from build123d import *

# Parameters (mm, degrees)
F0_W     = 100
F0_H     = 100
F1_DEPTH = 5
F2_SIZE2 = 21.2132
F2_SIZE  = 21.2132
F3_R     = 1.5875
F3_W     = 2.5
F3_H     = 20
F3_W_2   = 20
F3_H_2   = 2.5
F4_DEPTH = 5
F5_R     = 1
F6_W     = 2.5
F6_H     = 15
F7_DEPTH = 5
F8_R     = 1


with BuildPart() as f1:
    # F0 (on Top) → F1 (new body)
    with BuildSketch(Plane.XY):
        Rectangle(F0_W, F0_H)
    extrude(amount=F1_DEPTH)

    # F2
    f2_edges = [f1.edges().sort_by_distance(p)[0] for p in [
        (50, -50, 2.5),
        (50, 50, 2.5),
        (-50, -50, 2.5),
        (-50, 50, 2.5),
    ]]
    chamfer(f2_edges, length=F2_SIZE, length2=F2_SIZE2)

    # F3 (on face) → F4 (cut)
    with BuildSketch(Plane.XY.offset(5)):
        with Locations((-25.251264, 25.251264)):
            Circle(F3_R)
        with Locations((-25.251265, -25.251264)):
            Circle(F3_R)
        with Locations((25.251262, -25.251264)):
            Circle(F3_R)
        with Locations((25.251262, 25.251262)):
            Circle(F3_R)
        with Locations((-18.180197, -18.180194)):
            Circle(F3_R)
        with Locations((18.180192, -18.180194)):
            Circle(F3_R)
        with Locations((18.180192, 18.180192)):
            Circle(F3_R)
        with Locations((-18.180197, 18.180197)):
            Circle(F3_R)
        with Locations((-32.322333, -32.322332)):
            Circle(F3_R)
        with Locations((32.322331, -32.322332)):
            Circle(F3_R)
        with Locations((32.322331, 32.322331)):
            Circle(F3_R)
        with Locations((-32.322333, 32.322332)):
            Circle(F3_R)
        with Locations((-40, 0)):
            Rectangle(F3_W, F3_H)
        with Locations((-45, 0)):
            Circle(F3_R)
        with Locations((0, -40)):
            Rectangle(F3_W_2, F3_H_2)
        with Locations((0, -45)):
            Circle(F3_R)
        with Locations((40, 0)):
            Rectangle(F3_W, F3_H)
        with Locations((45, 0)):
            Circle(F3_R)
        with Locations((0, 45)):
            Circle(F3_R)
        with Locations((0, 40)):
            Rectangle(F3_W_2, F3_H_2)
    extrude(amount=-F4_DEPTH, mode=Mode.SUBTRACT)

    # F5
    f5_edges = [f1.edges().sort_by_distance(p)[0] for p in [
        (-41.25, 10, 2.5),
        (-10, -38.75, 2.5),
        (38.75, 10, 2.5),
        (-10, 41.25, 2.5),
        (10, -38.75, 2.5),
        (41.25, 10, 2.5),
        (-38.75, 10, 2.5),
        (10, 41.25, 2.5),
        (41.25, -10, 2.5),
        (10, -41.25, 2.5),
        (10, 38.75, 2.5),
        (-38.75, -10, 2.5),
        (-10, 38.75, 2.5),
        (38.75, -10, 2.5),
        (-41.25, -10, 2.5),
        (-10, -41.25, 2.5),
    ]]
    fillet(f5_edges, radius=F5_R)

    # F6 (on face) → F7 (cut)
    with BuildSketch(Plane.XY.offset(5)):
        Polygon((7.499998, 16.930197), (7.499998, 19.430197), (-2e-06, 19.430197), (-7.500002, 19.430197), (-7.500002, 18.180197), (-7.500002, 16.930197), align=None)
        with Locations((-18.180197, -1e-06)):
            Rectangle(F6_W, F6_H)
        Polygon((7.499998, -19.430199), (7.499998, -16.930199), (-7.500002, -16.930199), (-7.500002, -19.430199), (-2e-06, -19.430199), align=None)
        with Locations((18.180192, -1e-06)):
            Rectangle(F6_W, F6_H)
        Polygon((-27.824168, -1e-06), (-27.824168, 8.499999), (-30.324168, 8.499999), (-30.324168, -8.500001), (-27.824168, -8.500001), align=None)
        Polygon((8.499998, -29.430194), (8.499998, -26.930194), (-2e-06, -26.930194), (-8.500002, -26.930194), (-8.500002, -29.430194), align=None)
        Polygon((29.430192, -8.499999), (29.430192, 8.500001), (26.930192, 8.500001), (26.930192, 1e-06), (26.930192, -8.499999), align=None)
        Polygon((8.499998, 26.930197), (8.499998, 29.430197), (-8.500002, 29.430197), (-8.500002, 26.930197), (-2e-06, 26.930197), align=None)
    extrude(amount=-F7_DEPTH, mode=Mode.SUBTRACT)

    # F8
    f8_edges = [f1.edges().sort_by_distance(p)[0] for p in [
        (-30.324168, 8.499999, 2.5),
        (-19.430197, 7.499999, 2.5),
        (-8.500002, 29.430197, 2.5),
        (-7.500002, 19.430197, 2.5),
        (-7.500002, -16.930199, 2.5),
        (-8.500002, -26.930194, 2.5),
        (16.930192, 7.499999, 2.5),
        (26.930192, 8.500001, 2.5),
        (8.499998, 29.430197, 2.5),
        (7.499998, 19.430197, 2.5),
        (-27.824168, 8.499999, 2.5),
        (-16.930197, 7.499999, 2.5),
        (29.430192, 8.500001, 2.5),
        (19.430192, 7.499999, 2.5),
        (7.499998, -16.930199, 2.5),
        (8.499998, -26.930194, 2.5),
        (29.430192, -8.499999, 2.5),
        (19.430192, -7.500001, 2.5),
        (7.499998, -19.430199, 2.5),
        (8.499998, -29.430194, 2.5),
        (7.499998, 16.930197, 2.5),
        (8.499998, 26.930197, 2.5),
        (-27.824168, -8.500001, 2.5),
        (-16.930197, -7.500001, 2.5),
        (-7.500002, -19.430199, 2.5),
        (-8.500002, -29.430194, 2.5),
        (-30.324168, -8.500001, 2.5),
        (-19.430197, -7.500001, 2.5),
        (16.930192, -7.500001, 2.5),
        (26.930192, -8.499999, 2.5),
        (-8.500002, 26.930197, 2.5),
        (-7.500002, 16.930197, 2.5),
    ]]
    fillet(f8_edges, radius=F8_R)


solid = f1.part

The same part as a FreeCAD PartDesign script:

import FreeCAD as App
import Part
import Sketcher

V = App.Vector
Q = App.Units.Quantity


def edges_at(feature, points):
    """Names of the edges that pass closest to the given points."""
    edges = feature.Shape.Edges
    near = lambda p: min(range(len(edges)), key=lambda i: edges[i].distToShape(Part.Vertex(*p))[0])
    return sorted({f"Edge{near(p) + 1}" for p in points})


def add_polygon(sketch, points):
    """Adds a closed chain of lines whose ends are joined by coincident constraints."""
    first, n = sketch.GeometryCount, len(points)
    for a, b in zip(points, points[1:] + points[:1]):
        sketch.addGeometry(Part.LineSegment(App.Vector(*a, 0), App.Vector(*b, 0)), False)
    for i in range(n):
        sketch.addConstraint(Sketcher.Constraint("Coincident", first + i, 2, first + (i + 1) % n, 1))

doc = App.newDocument("Part")
body = doc.addObject("PartDesign::Body", "Body")

# Sketch on XY plane
sketch1 = body.newObject("Sketcher::SketchObject", "Sketch")
sketch1.AttachmentSupport = (doc.getObject("XY_Plane"), [""])
sketch1.MapMode = "FlatFace"
add_polygon(sketch1, [(-50, 50), (-50, -50), (50, -50), (50, 50)])  # lines 0-3
sketch1.addConstraint(Sketcher.Constraint("Vertical", 0))
sketch1.addConstraint(Sketcher.Constraint("Horizontal", 1))
sketch1.addConstraint(Sketcher.Constraint("Vertical", 2))
sketch1.addConstraint(Sketcher.Constraint("Horizontal", 3))
sketch1.addConstraint(Sketcher.Constraint("Symmetric", 0, 2, 2, 2, -1, 1))
sketch1.addConstraint(Sketcher.Constraint("Equal", 3, 0))
sketch1.addConstraint(Sketcher.Constraint("DistanceX", 1, 1, 1, 2, Q("100 mm")))
pad1 = body.newObject("PartDesign::Pad", "Pad")
pad1.Profile = sketch1
pad1.Length = 5
doc.recompute()

chamfer = body.newObject("PartDesign::Chamfer", "Chamfer")
chamfer.Base = (pad1, edges_at(pad1, [
    (50, -50, 2.5),
    (50, 50, 2.5),
    (-50, -50, 2.5),
    (-50, 50, 2.5),
]))
chamfer.ChamferType = "Two distances"
chamfer.Size = 21.2132
chamfer.Size2 = 21.2132

# Sketch on XY plane
sketch2 = body.newObject("Sketcher::SketchObject", "Sketch001")
sketch2.AttachmentSupport = (doc.getObject("XY_Plane"), [""])
sketch2.MapMode = "FlatFace"
sketch2.AttachmentOffset = App.Placement(V(0, 0, 5), App.Rotation())
sketch2.addGeometry(Part.Circle(V(-25.3, 25.3, 0), V(0, 0, 1), 1.6), False)  # 0
sketch2.addGeometry(Part.Circle(V(-25.3, -25.3, 0), V(0, 0, 1), 1.6), False)  # 1
sketch2.addGeometry(Part.Circle(V(25.3, -25.3, 0), V(0, 0, 1), 1.6), False)  # 2
sketch2.addGeometry(Part.Circle(V(25.3, 25.3, 0), V(0, 0, 1), 1.6), False)  # 3
sketch2.addGeometry(Part.Circle(V(-18.2, -18.2, 0), V(0, 0, 1), 1.6), False)  # 4
sketch2.addGeometry(Part.Circle(V(18.2, -18.2, 0), V(0, 0, 1), 1.6), False)  # 5
sketch2.addGeometry(Part.Circle(V(18.2, 18.2, 0), V(0, 0, 1), 1.6), False)  # 6
sketch2.addGeometry(Part.Circle(V(-18.2, 18.2, 0), V(0, 0, 1), 1.6), False)  # 7
sketch2.addGeometry(Part.Circle(V(-32.3, -32.3, 0), V(0, 0, 1), 1.6), False)  # 8
sketch2.addGeometry(Part.Circle(V(32.3, -32.3, 0), V(0, 0, 1), 1.6), False)  # 9
sketch2.addGeometry(Part.Circle(V(32.3, 32.3, 0), V(0, 0, 1), 1.6), False)  # 10
sketch2.addGeometry(Part.Circle(V(-32.3, 32.3, 0), V(0, 0, 1), 1.6), False)  # 11
add_polygon(sketch2, [(-41.2, 10), (-41.2, -10), (-38.8, -10), (-38.8, 10)])  # lines 12-15
sketch2.addGeometry(Part.Circle(V(-45, 0, 0), V(0, 0, 1), 1.6), False)  # 16
add_polygon(sketch2, [(-10, -38.8), (-10, -41.2), (10, -41.2), (10, -38.8)])  # lines 17-20
sketch2.addGeometry(Part.Circle(V(0, -45, 0), V(0, 0, 1), 1.6), False)  # 21
add_polygon(sketch2, [(38.8, 10), (38.8, -10), (41.2, -10), (41.2, 10)])  # lines 22-25
sketch2.addGeometry(Part.Circle(V(45, 0, 0), V(0, 0, 1), 1.6), False)  # 26
sketch2.addGeometry(Part.Circle(V(0, 45, 0), V(0, 0, 1), 1.6), False)  # 27
add_polygon(sketch2, [(-10, 41.2), (-10, 38.8), (10, 38.8), (10, 41.2)])  # lines 28-31
sketch2.addConstraint(Sketcher.Constraint("Vertical", 12))
sketch2.addConstraint(Sketcher.Constraint("Horizontal", 13))
sketch2.addConstraint(Sketcher.Constraint("Vertical", 14))
sketch2.addConstraint(Sketcher.Constraint("Horizontal", 15))
sketch2.addConstraint(Sketcher.Constraint("Vertical", 17))
sketch2.addConstraint(Sketcher.Constraint("Horizontal", 18))
sketch2.addConstraint(Sketcher.Constraint("Vertical", 19))
sketch2.addConstraint(Sketcher.Constraint("Horizontal", 20))
sketch2.addConstraint(Sketcher.Constraint("Vertical", 22))
sketch2.addConstraint(Sketcher.Constraint("Horizontal", 23))
sketch2.addConstraint(Sketcher.Constraint("Vertical", 24))
sketch2.addConstraint(Sketcher.Constraint("Horizontal", 25))
sketch2.addConstraint(Sketcher.Constraint("Vertical", 28))
sketch2.addConstraint(Sketcher.Constraint("Horizontal", 29))
sketch2.addConstraint(Sketcher.Constraint("Vertical", 30))
sketch2.addConstraint(Sketcher.Constraint("Horizontal", 31))
sketch2.addConstraint(Sketcher.Constraint("Equal", 0, 1))
sketch2.addConstraint(Sketcher.Constraint("Equal", 1, 2))
sketch2.addConstraint(Sketcher.Constraint("Equal", 2, 3))
sketch2.addConstraint(Sketcher.Constraint("Equal", 3, 4))
sketch2.addConstraint(Sketcher.Constraint("Equal", 4, 5))
sketch2.addConstraint(Sketcher.Constraint("Equal", 5, 6))
sketch2.addConstraint(Sketcher.Constraint("Equal", 6, 7))
sketch2.addConstraint(Sketcher.Constraint("Equal", 7, 8))
sketch2.addConstraint(Sketcher.Constraint("Equal", 8, 9))
sketch2.addConstraint(Sketcher.Constraint("Equal", 9, 10))
sketch2.addConstraint(Sketcher.Constraint("Equal", 10, 11))
sketch2.addConstraint(Sketcher.Constraint("Equal", 11, 16))
sketch2.addConstraint(Sketcher.Constraint("Equal", 16, 21))
sketch2.addConstraint(Sketcher.Constraint("Equal", 21, 26))
sketch2.addConstraint(Sketcher.Constraint("Equal", 26, 27))
sketch2.addConstraint(Sketcher.Constraint("Symmetric", 0, 3, 2, 3, -1, 1))
sketch2.addConstraint(Sketcher.Constraint("Symmetric", 1, 3, 3, 3, -1, 1))
sketch2.addConstraint(Sketcher.Constraint("Symmetric", 4, 3, 6, 3, -1, 1))
sketch2.addConstraint(Sketcher.Constraint("Symmetric", 5, 3, 7, 3, -1, 1))
sketch2.addConstraint(Sketcher.Constraint("Symmetric", 8, 3, 10, 3, -1, 1))
sketch2.addConstraint(Sketcher.Constraint("Symmetric", 9, 3, 11, 3, -1, 1))
sketch2.addConstraint(Sketcher.Constraint("Symmetric", 16, 3, 26, 3, -1, 1))
sketch2.addConstraint(Sketcher.Constraint("Symmetric", 21, 3, 27, 3, -1, 1))
sketch2.addConstraint(Sketcher.Constraint("Symmetric", 14, 2, 22, 2, -1, 1))
sketch2.addConstraint(Sketcher.Constraint("Symmetric", 12, 2, 24, 2, -1, 1))
sketch2.addConstraint(Sketcher.Constraint("Symmetric", 19, 2, 28, 2, -1, 1))
sketch2.addConstraint(Sketcher.Constraint("Symmetric", 17, 2, 30, 2, -1, 1))
sketch2.addConstraint(Sketcher.Constraint("Symmetric", 1, 3, 2, 3, -2))
sketch2.addConstraint(Sketcher.Constraint("Symmetric", 4, 3, 5, 3, -2))
sketch2.addConstraint(Sketcher.Constraint("Symmetric", 8, 3, 9, 3, -2))
sketch2.addConstraint(Sketcher.Constraint("PointOnObject", 16, 3, -1))
sketch2.addConstraint(Sketcher.Constraint("PointOnObject", 21, 3, -2))
sketch2.addConstraint(Sketcher.Constraint("Horizontal", 13, 2, 22, 2))
sketch2.addConstraint(Sketcher.Constraint("Vertical", 20, 2, 28, 2))
sketch2.addConstraint(Sketcher.Constraint("Equal", 31, 12))
sketch2.addConstraint(Sketcher.Constraint("Equal", 25, 17))
sketch2.addConstraint(Sketcher.Constraint("DistanceX", 18, 1, 18, 2, Q("20 mm")))
sketch2.addConstraint(Sketcher.Constraint("Diameter", 0, Q("3.175 mm")))
sketch2.addConstraint(Sketcher.Constraint("DistanceX", 13, 1, 13, 2, Q("2.5 mm")))
sketch2.addConstraint(Sketcher.Constraint("DistanceX", 16, 3, -1, 1, Q("45 mm")))
sketch2.addConstraint(Sketcher.Constraint("DistanceY", 21, 3, -1, 1, Q("45 mm")))
sketch2.addConstraint(Sketcher.Constraint("DistanceX", 12, 2, -1, 1, Q("41.25 mm")))
sketch2.addConstraint(Sketcher.Constraint("DistanceY", 17, 2, -1, 1, Q("41.25 mm")))
sketch2.addConstraint(Sketcher.Constraint("DistanceX", -1, 1, 9, 3, Q("32.322331 mm")))
sketch2.addConstraint(Sketcher.Constraint("DistanceY", -1, 1, 10, 3, Q("32.322331 mm")))
sketch2.addConstraint(Sketcher.Constraint("DistanceX", 1, 3, 4, 3, Q("7.071068 mm")))
sketch2.addConstraint(Sketcher.Constraint("DistanceY", 1, 3, 4, 3, Q("7.07107 mm")))
sketch2.addConstraint(Sketcher.Constraint("DistanceX", 4, 3, 2, 3, Q("43.431459 mm")))
sketch2.addConstraint(Sketcher.Constraint("DistanceY", 4, 3, 7, 3, Q("36.360391 mm")))
pocket1 = body.newObject("PartDesign::Pocket", "Pocket")
pocket1.Profile = sketch2
pocket1.Length = 5
doc.recompute()

fillet = body.newObject("PartDesign::Fillet", "Fillet")
fillet.Base = (pocket1, edges_at(pocket1, [
    (-41.25, 10, 2.5),
    (-10, -38.75, 2.5),
    (38.75, 10, 2.5),
    (-10, 41.25, 2.5),
    (10, -38.75, 2.5),
    (41.25, 10, 2.5),
    (-38.75, 10, 2.5),
    (10, 41.25, 2.5),
    (41.25, -10, 2.5),
    (10, -41.25, 2.5),
    (10, 38.75, 2.5),
    (-38.75, -10, 2.5),
    (-10, 38.75, 2.5),
    (38.75, -10, 2.5),
    (-41.25, -10, 2.5),
    (-10, -41.25, 2.5),
]))
fillet.Radius = 1

# Sketch on XY plane
sketch3 = body.newObject("Sketcher::SketchObject", "Sketch002")
sketch3.AttachmentSupport = (doc.getObject("XY_Plane"), [""])
sketch3.MapMode = "FlatFace"
sketch3.AttachmentOffset = App.Placement(V(0, 0, 5), App.Rotation())
add_polygon(sketch3, [(7.5, 16.9), (7.5, 19.4), (-7.5, 19.4), (-7.5, 16.9)])  # lines 0-3
add_polygon(sketch3, [(-19.4, 7.5), (-19.4, -7.5), (-16.9, -7.5), (-16.9, 7.5)])  # lines 4-7
add_polygon(sketch3, [(7.5, -19.4), (7.5, -16.9), (-7.5, -16.9), (-7.5, -19.4)])  # lines 8-11
add_polygon(sketch3, [(16.9, 7.5), (16.9, -7.5), (19.4, -7.5), (19.4, 7.5)])  # lines 12-15
add_polygon(sketch3, [(-27.8, 8.5), (-30.3, 8.5), (-30.3, -8.5), (-27.8, -8.5)])  # lines 16-19
add_polygon(sketch3, [(8.5, -29.4), (8.5, -26.9), (-8.5, -26.9), (-8.5, -29.4)])  # lines 20-23
add_polygon(sketch3, [(29.4, -8.5), (29.4, 8.5), (26.9, 8.5), (26.9, -8.5)])  # lines 24-27
add_polygon(sketch3, [(8.5, 26.9), (8.5, 29.4), (-8.5, 29.4), (-8.5, 26.9)])  # lines 28-31
sketch3.addConstraint(Sketcher.Constraint("Vertical", 0))
sketch3.addConstraint(Sketcher.Constraint("Horizontal", 1))
sketch3.addConstraint(Sketcher.Constraint("Vertical", 2))
sketch3.addConstraint(Sketcher.Constraint("Horizontal", 3))
sketch3.addConstraint(Sketcher.Constraint("Vertical", 4))
sketch3.addConstraint(Sketcher.Constraint("Horizontal", 5))
sketch3.addConstraint(Sketcher.Constraint("Vertical", 6))
sketch3.addConstraint(Sketcher.Constraint("Horizontal", 7))
sketch3.addConstraint(Sketcher.Constraint("Vertical", 8))
sketch3.addConstraint(Sketcher.Constraint("Horizontal", 9))
sketch3.addConstraint(Sketcher.Constraint("Vertical", 10))
sketch3.addConstraint(Sketcher.Constraint("Horizontal", 11))
sketch3.addConstraint(Sketcher.Constraint("Vertical", 12))
sketch3.addConstraint(Sketcher.Constraint("Horizontal", 13))
sketch3.addConstraint(Sketcher.Constraint("Vertical", 14))
sketch3.addConstraint(Sketcher.Constraint("Horizontal", 15))
sketch3.addConstraint(Sketcher.Constraint("Horizontal", 16))
sketch3.addConstraint(Sketcher.Constraint("Vertical", 17))
sketch3.addConstraint(Sketcher.Constraint("Horizontal", 18))
sketch3.addConstraint(Sketcher.Constraint("Vertical", 19))
sketch3.addConstraint(Sketcher.Constraint("Vertical", 20))
sketch3.addConstraint(Sketcher.Constraint("Horizontal", 21))
sketch3.addConstraint(Sketcher.Constraint("Vertical", 22))
sketch3.addConstraint(Sketcher.Constraint("Horizontal", 23))
sketch3.addConstraint(Sketcher.Constraint("Vertical", 24))
sketch3.addConstraint(Sketcher.Constraint("Horizontal", 25))
sketch3.addConstraint(Sketcher.Constraint("Vertical", 26))
sketch3.addConstraint(Sketcher.Constraint("Horizontal", 27))
sketch3.addConstraint(Sketcher.Constraint("Vertical", 28))
sketch3.addConstraint(Sketcher.Constraint("Horizontal", 29))
sketch3.addConstraint(Sketcher.Constraint("Vertical", 30))
sketch3.addConstraint(Sketcher.Constraint("Horizontal", 31))
sketch3.addConstraint(Sketcher.Constraint("Symmetric", 2, 2, 8, 2, -1, 1))
sketch3.addConstraint(Sketcher.Constraint("Symmetric", 0, 2, 10, 2, -1, 1))
sketch3.addConstraint(Sketcher.Constraint("Symmetric", 6, 2, 12, 2, -1, 1))
sketch3.addConstraint(Sketcher.Constraint("Symmetric", 4, 2, 14, 2, -1, 1))
sketch3.addConstraint(Sketcher.Constraint("Symmetric", 22, 2, 28, 2, -1, 1))
sketch3.addConstraint(Sketcher.Constraint("Symmetric", 20, 2, 30, 2, -1, 1))
sketch3.addConstraint(Sketcher.Constraint("Horizontal", 5, 2, 12, 2))
sketch3.addConstraint(Sketcher.Constraint("Horizontal", 19, 2, 24, 2))
sketch3.addConstraint(Sketcher.Constraint("Horizontal", 18, 2, 26, 2))
sketch3.addConstraint(Sketcher.Constraint("Vertical", 3, 2, 8, 2))
sketch3.addConstraint(Sketcher.Constraint("Vertical", 23, 2, 28, 2))
sketch3.addConstraint(Sketcher.Constraint("Equal", 15, 16))
sketch3.addConstraint(Sketcher.Constraint("Equal", 18, 25))
sketch3.addConstraint(Sketcher.Constraint("Equal", 27, 0))
sketch3.addConstraint(Sketcher.Constraint("Equal", 11, 4))
sketch3.addConstraint(Sketcher.Constraint("Equal", 31, 17))
sketch3.addConstraint(Sketcher.Constraint("Equal", 10, 20))
sketch3.addConstraint(Sketcher.Constraint("DistanceX", 1, 2, 1, 1, Q("15 mm")))
sketch3.addConstraint(Sketcher.Constraint("DistanceX", 21, 2, 21, 1, Q("17 mm")))
sketch3.addConstraint(Sketcher.Constraint("DistanceX", 5, 1, 5, 2, Q("2.5 mm")))
sketch3.addConstraint(Sketcher.Constraint("DistanceY", 7, 2, 16, 2, Q("1 mm")))
sketch3.addConstraint(Sketcher.Constraint("DistanceX", 14, 2, 24, 2, Q("10 mm")))
sketch3.addConstraint(Sketcher.Constraint("DistanceY", 0, 2, 28, 2, Q("10 mm")))
sketch3.addConstraint(Sketcher.Constraint("DistanceY", 8, 2, -1, 1, Q("16.930199 mm")))
sketch3.addConstraint(Sketcher.Constraint("DistanceX", 16, 2, -1, 1, Q("30.324168 mm")))
sketch3.addConstraint(Sketcher.Constraint("DistanceX", 16, 2, 7, 2, Q("10.893971 mm")))
pocket2 = body.newObject("PartDesign::Pocket", "Pocket001")
pocket2.Profile = sketch3
pocket2.Length = 5
doc.recompute()

fillet2 = body.newObject("PartDesign::Fillet", "Fillet001")
fillet2.Base = (pocket2, edges_at(pocket2, [
    (-30.324, 8.5, 2.5),
    (-19.43, 7.5, 2.5),
    (-8.5, 29.43, 2.5),
    (-7.5, 19.43, 2.5),
    (-7.5, -16.93, 2.5),
    (-8.5, -26.93, 2.5),
    (16.93, 7.5, 2.5),
    (26.93, 8.5, 2.5),
    (8.5, 29.43, 2.5),
    (7.5, 19.43, 2.5),
    (-27.824, 8.5, 2.5),
    (-16.93, 7.5, 2.5),
    (29.43, 8.5, 2.5),
    (19.43, 7.5, 2.5),
    (7.5, -16.93, 2.5),
    (8.5, -26.93, 2.5),
    (29.43, -8.5, 2.5),
    (19.43, -7.5, 2.5),
    (7.5, -19.43, 2.5),
    (8.5, -29.43, 2.5),
    (7.5, 16.93, 2.5),
    (8.5, 26.93, 2.5),
    (-27.824, -8.5, 2.5),
    (-16.93, -7.5, 2.5),
    (-7.5, -19.43, 2.5),
    (-8.5, -29.43, 2.5),
    (-30.324, -8.5, 2.5),
    (-19.43, -7.5, 2.5),
    (16.93, -7.5, 2.5),
    (26.93, -8.5, 2.5),
    (-8.5, 26.93, 2.5),
    (-7.5, 16.93, 2.5),
]))
fillet2.Radius = 1

doc.recompute()
